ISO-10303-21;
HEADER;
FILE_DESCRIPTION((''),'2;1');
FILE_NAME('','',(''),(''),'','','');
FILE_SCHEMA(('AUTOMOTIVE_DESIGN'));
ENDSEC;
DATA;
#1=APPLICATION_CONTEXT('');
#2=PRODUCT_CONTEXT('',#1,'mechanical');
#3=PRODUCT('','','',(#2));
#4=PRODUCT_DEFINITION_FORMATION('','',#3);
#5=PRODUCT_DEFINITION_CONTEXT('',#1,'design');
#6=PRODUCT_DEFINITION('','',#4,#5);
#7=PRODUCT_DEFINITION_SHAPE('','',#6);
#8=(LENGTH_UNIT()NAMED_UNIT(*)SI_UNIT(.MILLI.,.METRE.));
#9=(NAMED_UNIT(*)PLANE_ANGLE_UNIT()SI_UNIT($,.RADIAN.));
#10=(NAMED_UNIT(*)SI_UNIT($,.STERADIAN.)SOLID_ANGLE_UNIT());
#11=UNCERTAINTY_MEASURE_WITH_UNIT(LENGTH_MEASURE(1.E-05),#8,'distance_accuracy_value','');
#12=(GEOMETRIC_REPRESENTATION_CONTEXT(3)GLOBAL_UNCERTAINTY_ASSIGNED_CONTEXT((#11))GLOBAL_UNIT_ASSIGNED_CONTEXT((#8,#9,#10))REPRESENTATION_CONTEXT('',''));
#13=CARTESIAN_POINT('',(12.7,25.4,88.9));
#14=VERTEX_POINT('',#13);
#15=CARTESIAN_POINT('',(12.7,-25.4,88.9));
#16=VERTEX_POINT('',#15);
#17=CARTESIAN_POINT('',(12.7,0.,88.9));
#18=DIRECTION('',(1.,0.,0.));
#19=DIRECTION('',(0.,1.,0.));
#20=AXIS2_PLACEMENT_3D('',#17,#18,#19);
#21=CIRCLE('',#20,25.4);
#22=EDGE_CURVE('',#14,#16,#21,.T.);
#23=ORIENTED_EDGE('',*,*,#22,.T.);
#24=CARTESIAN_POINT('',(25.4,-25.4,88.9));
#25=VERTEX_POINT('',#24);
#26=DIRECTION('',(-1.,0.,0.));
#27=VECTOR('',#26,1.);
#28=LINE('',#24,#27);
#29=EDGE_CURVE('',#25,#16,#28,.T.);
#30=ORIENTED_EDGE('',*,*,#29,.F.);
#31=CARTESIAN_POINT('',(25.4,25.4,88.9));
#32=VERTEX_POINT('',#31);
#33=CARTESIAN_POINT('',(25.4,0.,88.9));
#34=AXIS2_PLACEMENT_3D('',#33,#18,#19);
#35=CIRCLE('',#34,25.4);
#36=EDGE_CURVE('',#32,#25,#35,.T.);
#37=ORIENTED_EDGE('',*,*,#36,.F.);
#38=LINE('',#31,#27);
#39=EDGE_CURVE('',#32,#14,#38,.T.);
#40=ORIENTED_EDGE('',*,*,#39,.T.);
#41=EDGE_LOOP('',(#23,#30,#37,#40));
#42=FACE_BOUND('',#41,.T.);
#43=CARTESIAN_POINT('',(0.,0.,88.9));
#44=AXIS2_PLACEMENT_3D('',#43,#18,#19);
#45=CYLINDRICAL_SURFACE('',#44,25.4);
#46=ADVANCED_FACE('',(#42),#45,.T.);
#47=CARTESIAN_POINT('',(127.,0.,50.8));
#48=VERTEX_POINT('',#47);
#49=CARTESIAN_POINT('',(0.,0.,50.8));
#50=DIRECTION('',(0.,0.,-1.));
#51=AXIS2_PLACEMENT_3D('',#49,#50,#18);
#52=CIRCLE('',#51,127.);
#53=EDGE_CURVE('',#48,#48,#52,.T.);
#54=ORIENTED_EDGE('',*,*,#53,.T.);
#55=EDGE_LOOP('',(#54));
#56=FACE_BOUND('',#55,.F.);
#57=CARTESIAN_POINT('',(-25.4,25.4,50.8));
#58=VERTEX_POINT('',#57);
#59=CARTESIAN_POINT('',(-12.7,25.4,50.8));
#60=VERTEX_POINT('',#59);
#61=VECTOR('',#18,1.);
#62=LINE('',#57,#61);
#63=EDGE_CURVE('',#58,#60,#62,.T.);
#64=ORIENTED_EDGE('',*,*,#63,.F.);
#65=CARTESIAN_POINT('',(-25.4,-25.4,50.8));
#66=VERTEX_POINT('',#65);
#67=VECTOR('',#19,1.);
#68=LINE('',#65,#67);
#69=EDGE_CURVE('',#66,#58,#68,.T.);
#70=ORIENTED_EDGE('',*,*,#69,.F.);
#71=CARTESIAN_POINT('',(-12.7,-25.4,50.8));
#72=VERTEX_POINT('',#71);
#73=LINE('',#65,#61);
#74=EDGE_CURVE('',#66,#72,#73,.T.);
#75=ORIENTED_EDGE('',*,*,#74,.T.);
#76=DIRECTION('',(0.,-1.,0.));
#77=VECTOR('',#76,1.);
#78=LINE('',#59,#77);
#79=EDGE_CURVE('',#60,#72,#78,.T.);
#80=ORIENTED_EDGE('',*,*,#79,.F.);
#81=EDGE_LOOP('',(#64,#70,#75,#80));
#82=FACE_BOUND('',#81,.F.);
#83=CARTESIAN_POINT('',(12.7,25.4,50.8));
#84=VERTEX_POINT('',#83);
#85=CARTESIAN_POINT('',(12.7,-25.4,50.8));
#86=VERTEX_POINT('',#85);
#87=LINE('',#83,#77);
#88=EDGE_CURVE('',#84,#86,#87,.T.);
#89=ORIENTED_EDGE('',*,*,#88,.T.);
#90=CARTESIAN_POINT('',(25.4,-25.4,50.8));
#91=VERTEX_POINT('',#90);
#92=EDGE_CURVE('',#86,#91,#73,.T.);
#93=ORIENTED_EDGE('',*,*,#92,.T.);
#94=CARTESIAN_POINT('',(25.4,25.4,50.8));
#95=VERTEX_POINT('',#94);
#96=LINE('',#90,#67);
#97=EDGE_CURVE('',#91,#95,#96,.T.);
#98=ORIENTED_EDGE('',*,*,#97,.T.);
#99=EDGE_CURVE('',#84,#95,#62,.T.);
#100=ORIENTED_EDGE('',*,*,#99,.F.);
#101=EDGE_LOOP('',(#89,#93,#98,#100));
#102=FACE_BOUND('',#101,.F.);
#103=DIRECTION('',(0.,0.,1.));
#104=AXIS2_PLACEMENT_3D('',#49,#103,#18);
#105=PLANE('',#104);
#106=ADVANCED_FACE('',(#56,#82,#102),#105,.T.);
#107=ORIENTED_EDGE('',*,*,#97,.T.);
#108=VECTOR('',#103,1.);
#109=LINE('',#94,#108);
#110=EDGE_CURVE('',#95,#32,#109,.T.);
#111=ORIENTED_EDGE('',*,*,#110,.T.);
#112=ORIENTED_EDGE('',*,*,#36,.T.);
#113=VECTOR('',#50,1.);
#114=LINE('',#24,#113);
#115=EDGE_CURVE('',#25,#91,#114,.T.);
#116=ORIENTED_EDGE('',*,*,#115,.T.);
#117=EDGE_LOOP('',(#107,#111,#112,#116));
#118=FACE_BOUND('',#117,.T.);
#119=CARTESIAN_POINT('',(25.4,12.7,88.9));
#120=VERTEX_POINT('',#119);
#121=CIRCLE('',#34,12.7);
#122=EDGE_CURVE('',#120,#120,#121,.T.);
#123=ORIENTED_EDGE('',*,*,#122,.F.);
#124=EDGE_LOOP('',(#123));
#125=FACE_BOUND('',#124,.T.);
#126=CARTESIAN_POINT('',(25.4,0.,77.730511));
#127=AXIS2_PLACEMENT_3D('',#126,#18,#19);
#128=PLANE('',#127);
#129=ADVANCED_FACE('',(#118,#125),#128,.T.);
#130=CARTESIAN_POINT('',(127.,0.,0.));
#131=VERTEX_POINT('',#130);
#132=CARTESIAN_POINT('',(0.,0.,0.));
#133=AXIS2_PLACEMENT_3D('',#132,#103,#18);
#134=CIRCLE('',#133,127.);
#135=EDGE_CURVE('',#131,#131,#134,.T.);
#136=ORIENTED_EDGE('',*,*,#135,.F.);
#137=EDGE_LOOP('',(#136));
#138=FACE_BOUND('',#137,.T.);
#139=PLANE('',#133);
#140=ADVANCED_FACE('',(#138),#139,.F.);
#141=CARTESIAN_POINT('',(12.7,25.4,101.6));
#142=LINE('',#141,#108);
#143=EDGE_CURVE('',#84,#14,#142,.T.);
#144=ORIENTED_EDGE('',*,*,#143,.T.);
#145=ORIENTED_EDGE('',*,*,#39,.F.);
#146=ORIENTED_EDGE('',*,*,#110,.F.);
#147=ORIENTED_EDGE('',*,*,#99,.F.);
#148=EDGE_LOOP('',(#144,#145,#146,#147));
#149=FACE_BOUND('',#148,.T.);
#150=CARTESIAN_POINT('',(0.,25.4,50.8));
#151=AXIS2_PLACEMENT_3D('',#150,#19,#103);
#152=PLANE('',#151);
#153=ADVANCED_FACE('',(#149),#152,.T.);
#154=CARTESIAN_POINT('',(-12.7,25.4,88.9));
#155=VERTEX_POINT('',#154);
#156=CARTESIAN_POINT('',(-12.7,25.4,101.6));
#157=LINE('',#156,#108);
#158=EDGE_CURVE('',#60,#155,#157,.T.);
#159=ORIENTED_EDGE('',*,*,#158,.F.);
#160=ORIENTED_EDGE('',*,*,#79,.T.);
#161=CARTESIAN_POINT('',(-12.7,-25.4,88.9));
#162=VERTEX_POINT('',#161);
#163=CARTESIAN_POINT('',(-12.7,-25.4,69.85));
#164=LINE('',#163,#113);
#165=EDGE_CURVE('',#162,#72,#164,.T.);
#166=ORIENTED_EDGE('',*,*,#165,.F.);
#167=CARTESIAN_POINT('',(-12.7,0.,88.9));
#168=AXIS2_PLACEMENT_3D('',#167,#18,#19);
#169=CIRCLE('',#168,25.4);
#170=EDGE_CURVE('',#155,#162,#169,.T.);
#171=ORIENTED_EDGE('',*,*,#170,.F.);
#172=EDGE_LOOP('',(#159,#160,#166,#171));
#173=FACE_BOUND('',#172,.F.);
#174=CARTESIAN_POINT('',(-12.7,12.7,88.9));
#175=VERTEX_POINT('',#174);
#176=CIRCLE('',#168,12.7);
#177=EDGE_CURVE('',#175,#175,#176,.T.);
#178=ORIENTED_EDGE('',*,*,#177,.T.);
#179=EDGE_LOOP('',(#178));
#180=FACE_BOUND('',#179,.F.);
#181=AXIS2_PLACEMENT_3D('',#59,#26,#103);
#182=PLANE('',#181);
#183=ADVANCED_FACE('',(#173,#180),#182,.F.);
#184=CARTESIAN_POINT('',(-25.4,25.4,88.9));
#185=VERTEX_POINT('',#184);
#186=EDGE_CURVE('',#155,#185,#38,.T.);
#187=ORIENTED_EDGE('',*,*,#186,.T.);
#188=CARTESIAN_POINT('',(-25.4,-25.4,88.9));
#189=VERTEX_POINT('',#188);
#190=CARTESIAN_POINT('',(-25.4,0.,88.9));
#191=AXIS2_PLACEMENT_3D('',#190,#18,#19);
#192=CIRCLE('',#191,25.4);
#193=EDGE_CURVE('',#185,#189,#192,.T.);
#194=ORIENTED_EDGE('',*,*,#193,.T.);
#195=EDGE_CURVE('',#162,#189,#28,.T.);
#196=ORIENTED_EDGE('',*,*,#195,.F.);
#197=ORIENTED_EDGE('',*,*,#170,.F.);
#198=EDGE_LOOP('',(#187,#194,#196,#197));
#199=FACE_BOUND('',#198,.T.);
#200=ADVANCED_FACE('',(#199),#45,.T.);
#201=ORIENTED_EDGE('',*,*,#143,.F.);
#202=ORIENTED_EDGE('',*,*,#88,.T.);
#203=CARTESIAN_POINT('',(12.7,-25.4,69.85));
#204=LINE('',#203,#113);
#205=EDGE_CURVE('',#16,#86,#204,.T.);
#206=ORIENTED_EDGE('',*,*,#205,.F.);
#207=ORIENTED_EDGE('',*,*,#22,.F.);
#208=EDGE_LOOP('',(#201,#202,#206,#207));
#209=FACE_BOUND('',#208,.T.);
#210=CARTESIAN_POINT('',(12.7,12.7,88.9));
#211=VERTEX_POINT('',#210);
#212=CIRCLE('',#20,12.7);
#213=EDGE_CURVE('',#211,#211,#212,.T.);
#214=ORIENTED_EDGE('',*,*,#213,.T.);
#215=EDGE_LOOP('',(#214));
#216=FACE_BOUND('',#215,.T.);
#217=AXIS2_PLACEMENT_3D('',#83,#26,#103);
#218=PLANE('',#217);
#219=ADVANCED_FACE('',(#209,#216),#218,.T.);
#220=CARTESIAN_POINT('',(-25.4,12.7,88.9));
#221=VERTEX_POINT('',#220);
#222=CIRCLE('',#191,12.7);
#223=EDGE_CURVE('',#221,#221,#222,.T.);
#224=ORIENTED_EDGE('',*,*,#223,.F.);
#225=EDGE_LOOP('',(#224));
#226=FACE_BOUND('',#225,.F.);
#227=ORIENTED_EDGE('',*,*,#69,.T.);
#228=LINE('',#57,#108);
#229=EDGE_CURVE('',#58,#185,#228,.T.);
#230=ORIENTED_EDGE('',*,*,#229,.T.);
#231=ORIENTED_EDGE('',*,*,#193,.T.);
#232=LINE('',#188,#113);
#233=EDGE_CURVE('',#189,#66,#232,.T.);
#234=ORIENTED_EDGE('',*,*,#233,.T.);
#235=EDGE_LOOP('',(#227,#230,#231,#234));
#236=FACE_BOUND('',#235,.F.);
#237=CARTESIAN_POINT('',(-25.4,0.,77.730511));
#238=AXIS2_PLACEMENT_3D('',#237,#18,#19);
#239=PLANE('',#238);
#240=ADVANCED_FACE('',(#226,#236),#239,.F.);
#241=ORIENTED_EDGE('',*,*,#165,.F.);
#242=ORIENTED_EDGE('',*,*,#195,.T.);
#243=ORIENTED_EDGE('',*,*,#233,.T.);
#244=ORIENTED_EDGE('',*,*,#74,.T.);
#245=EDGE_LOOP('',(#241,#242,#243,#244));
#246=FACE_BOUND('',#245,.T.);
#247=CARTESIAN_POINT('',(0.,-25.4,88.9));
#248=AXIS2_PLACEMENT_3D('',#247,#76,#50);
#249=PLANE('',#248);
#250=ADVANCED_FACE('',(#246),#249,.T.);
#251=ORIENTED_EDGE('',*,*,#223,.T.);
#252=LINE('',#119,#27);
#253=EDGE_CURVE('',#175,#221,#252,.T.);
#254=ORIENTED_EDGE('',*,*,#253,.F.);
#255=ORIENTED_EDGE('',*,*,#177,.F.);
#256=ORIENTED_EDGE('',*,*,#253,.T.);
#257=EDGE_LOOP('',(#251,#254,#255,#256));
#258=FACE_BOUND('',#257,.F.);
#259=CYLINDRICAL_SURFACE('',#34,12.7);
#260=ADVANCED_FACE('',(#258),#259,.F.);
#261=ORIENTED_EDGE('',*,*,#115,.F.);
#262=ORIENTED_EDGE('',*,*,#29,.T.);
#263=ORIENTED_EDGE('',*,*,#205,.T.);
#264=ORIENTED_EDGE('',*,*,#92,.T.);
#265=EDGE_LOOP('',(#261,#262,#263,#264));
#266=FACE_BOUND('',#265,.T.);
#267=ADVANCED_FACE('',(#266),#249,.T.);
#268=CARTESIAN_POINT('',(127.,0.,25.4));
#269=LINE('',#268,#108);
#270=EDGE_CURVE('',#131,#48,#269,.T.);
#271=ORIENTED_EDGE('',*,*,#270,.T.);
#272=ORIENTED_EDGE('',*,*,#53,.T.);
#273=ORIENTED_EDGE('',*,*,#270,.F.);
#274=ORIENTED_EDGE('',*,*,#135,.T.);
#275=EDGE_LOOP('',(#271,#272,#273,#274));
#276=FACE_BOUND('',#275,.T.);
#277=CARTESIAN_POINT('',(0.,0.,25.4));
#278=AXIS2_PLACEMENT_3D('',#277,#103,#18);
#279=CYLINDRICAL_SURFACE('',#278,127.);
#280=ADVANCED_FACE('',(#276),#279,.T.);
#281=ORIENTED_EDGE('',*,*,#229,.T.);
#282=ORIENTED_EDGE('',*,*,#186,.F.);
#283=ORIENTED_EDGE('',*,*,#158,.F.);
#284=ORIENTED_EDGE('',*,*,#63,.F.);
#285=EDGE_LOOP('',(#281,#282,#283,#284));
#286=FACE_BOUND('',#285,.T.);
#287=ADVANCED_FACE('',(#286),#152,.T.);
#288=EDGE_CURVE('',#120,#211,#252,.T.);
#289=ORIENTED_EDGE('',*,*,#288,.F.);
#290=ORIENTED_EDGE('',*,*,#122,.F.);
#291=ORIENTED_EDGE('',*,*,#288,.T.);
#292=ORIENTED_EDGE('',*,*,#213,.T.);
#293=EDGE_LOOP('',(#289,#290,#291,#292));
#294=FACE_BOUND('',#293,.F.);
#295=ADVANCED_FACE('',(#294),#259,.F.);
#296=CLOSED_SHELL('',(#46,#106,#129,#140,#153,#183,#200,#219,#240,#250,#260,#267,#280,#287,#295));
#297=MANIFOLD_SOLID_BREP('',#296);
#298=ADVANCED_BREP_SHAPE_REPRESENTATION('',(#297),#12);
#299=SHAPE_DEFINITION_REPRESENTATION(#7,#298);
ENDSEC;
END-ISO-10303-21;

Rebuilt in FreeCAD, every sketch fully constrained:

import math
import FreeCAD as App
import Part
import Sketcher

V = App.Vector
Q = App.Units.Quantity


def add_polygon(sketch, points):
    """Adds a closed chain of lines whose ends are joined by coincident constraints."""
    first, n = sketch.GeometryCount, len(points)
    for a, b in zip(points, points[1:] + points[:1]):
        sketch.addGeometry(Part.LineSegment(App.Vector(*a, 0), App.Vector(*b, 0)), False)
    for i in range(n):
        sketch.addConstraint(Sketcher.Constraint("Coincident", first + i, 2, first + (i + 1) % n, 1))

doc = App.newDocument("Part")
body = doc.addObject("PartDesign::Body", "Body")

# Sketch on XZ plane
sketch1 = body.newObject("Sketcher::SketchObject", "Sketch")
sketch1.AttachmentSupport = (doc.getObject("XZ_Plane"), [""])
sketch1.MapMode = "FlatFace"
add_polygon(sketch1, [(0, 51), (0, 0), (127, 0), (127, 51)])  # lines 0-3
sketch1.addConstraint(Sketcher.Constraint("Vertical", 0))
sketch1.addConstraint(Sketcher.Constraint("Horizontal", 1))
sketch1.addConstraint(Sketcher.Constraint("Vertical", 2))
sketch1.addConstraint(Sketcher.Constraint("Horizontal", 3))
sketch1.addConstraint(Sketcher.Constraint("Coincident", 0, 2, -1, 1))
sketch1.addConstraint(Sketcher.Constraint("DistanceX", 1, 1, 1, 2, Q("5 in")))
sketch1.addConstraint(Sketcher.Constraint("DistanceY", 0, 2, 0, 1, Q("2 in")))
revolution = body.newObject("PartDesign::Revolution", "Revolution")
revolution.Profile = sketch1
revolution.ReferenceAxis = (sketch1, ["V_Axis"])
revolution.Angle = 360

# Sketch on YZ plane
sketch2 = body.newObject("Sketcher::SketchObject", "Sketch001")
sketch2.AttachmentSupport = (doc.getObject("YZ_Plane"), [""])
sketch2.MapMode = "FlatFace"
sketch2.addGeometry(Part.LineSegment(V(-25, 89, 0), V(-25, 51, 0)), False)
sketch2.addGeometry(Part.LineSegment(V(-25, 51, 0), V(25, 51, 0)), False)
sketch2.addGeometry(Part.LineSegment(V(25, 51, 0), V(25, 89, 0)), False)
sketch2.addGeometry(Part.ArcOfCircle(Part.Circle(V(0, 89, 0), V(0, 0, 1), 25), math.radians(0), math.radians(180)), False)
sketch2.addConstraint(Sketcher.Constraint("Coincident", 0, 2, 1, 1))
sketch2.addConstraint(Sketcher.Constraint("Coincident", 1, 2, 2, 1))
sketch2.addConstraint(Sketcher.Constraint("Tangent", 2, 2, 3, 1))
sketch2.addConstraint(Sketcher.Constraint("Tangent", 3, 2, 0, 1))
sketch2.addConstraint(Sketcher.Constraint("Vertical", 0))
sketch2.addConstraint(Sketcher.Constraint("Horizontal", 1))
sketch2.addConstraint(Sketcher.Constraint("Vertical", 2))
sketch2.addConstraint(Sketcher.Constraint("PointOnObject", 3, 3, -2))
sketch2.addConstraint(Sketcher.Constraint("Radius", 3, Q("1 in")))
sketch2.addConstraint(Sketcher.Constraint("DistanceY", 0, 2, 0, 1, Q("1.5 in")))
sketch2.addConstraint(Sketcher.Constraint("DistanceY", -1, 1, 0, 2, Q("2 in")))
pad1 = body.newObject("PartDesign::Pad", "Pad")
pad1.Profile = sketch2
pad1.Length = Q("2 in")
pad1.Midplane = True

# Sketch on XZ plane
sketch3 = body.newObject("Sketcher::SketchObject", "Sketch002")
sketch3.AttachmentSupport = (doc.getObject("XZ_Plane"), [""])
sketch3.MapMode = "FlatFace"
sketch3.AttachmentOffset = App.Placement(V(0, 0, -1 * 25.4), App.Rotation())
add_polygon(sketch3, [(13, 152), (13, 51), (-13, 51), (-13, 152)])  # lines 0-3
sketch3.addConstraint(Sketcher.Constraint("Vertical", 0))
sketch3.addConstraint(Sketcher.Constraint("Horizontal", 1))
sketch3.addConstraint(Sketcher.Constraint("Vertical", 2))
sketch3.addConstraint(Sketcher.Constraint("Horizontal", 3))
sketch3.addConstraint(Sketcher.Constraint("DistanceX", 1, 2, 1, 1, Q("1 in")))
sketch3.addConstraint(Sketcher.Constraint("DistanceY", 0, 2, 0, 1, Q("4 in")))
sketch3.addConstraint(Sketcher.Constraint("DistanceY", -1, 1, 0, 2, Q("2 in")))
sketch3.addConstraint(Sketcher.Constraint("DistanceX", -1, 1, 0, 2, Q("0.5 in")))
pocket1 = body.newObject("PartDesign::Pocket", "Pocket")
pocket1.Profile = sketch3
pocket1.Type = "ThroughAll"
pocket1.Reversed = True

# Sketch on YZ plane
sketch4 = body.newObject("Sketcher::SketchObject", "Sketch003")
sketch4.AttachmentSupport = (doc.getObject("YZ_Plane"), [""])
sketch4.MapMode = "FlatFace"
sketch4.AttachmentOffset = App.Placement(V(0, 0, 1 * 25.4), App.Rotation())
sketch4.addGeometry(Part.Circle(V(0, 89, 0), V(0, 0, 1), 13), False)
sketch4.addConstraint(Sketcher.Constraint("PointOnObject", 0, 3, -2))
sketch4.addConstraint(Sketcher.Constraint("Diameter", 0, Q("1 in")))
sketch4.addConstraint(Sketcher.Constraint("DistanceY", -1, 1, 0, 3, Q("3.5 in")))
pocket2 = body.newObject("PartDesign::Pocket", "Pocket001")
pocket2.Profile = sketch4
pocket2.Type = "ThroughAll"

doc.recompute()
